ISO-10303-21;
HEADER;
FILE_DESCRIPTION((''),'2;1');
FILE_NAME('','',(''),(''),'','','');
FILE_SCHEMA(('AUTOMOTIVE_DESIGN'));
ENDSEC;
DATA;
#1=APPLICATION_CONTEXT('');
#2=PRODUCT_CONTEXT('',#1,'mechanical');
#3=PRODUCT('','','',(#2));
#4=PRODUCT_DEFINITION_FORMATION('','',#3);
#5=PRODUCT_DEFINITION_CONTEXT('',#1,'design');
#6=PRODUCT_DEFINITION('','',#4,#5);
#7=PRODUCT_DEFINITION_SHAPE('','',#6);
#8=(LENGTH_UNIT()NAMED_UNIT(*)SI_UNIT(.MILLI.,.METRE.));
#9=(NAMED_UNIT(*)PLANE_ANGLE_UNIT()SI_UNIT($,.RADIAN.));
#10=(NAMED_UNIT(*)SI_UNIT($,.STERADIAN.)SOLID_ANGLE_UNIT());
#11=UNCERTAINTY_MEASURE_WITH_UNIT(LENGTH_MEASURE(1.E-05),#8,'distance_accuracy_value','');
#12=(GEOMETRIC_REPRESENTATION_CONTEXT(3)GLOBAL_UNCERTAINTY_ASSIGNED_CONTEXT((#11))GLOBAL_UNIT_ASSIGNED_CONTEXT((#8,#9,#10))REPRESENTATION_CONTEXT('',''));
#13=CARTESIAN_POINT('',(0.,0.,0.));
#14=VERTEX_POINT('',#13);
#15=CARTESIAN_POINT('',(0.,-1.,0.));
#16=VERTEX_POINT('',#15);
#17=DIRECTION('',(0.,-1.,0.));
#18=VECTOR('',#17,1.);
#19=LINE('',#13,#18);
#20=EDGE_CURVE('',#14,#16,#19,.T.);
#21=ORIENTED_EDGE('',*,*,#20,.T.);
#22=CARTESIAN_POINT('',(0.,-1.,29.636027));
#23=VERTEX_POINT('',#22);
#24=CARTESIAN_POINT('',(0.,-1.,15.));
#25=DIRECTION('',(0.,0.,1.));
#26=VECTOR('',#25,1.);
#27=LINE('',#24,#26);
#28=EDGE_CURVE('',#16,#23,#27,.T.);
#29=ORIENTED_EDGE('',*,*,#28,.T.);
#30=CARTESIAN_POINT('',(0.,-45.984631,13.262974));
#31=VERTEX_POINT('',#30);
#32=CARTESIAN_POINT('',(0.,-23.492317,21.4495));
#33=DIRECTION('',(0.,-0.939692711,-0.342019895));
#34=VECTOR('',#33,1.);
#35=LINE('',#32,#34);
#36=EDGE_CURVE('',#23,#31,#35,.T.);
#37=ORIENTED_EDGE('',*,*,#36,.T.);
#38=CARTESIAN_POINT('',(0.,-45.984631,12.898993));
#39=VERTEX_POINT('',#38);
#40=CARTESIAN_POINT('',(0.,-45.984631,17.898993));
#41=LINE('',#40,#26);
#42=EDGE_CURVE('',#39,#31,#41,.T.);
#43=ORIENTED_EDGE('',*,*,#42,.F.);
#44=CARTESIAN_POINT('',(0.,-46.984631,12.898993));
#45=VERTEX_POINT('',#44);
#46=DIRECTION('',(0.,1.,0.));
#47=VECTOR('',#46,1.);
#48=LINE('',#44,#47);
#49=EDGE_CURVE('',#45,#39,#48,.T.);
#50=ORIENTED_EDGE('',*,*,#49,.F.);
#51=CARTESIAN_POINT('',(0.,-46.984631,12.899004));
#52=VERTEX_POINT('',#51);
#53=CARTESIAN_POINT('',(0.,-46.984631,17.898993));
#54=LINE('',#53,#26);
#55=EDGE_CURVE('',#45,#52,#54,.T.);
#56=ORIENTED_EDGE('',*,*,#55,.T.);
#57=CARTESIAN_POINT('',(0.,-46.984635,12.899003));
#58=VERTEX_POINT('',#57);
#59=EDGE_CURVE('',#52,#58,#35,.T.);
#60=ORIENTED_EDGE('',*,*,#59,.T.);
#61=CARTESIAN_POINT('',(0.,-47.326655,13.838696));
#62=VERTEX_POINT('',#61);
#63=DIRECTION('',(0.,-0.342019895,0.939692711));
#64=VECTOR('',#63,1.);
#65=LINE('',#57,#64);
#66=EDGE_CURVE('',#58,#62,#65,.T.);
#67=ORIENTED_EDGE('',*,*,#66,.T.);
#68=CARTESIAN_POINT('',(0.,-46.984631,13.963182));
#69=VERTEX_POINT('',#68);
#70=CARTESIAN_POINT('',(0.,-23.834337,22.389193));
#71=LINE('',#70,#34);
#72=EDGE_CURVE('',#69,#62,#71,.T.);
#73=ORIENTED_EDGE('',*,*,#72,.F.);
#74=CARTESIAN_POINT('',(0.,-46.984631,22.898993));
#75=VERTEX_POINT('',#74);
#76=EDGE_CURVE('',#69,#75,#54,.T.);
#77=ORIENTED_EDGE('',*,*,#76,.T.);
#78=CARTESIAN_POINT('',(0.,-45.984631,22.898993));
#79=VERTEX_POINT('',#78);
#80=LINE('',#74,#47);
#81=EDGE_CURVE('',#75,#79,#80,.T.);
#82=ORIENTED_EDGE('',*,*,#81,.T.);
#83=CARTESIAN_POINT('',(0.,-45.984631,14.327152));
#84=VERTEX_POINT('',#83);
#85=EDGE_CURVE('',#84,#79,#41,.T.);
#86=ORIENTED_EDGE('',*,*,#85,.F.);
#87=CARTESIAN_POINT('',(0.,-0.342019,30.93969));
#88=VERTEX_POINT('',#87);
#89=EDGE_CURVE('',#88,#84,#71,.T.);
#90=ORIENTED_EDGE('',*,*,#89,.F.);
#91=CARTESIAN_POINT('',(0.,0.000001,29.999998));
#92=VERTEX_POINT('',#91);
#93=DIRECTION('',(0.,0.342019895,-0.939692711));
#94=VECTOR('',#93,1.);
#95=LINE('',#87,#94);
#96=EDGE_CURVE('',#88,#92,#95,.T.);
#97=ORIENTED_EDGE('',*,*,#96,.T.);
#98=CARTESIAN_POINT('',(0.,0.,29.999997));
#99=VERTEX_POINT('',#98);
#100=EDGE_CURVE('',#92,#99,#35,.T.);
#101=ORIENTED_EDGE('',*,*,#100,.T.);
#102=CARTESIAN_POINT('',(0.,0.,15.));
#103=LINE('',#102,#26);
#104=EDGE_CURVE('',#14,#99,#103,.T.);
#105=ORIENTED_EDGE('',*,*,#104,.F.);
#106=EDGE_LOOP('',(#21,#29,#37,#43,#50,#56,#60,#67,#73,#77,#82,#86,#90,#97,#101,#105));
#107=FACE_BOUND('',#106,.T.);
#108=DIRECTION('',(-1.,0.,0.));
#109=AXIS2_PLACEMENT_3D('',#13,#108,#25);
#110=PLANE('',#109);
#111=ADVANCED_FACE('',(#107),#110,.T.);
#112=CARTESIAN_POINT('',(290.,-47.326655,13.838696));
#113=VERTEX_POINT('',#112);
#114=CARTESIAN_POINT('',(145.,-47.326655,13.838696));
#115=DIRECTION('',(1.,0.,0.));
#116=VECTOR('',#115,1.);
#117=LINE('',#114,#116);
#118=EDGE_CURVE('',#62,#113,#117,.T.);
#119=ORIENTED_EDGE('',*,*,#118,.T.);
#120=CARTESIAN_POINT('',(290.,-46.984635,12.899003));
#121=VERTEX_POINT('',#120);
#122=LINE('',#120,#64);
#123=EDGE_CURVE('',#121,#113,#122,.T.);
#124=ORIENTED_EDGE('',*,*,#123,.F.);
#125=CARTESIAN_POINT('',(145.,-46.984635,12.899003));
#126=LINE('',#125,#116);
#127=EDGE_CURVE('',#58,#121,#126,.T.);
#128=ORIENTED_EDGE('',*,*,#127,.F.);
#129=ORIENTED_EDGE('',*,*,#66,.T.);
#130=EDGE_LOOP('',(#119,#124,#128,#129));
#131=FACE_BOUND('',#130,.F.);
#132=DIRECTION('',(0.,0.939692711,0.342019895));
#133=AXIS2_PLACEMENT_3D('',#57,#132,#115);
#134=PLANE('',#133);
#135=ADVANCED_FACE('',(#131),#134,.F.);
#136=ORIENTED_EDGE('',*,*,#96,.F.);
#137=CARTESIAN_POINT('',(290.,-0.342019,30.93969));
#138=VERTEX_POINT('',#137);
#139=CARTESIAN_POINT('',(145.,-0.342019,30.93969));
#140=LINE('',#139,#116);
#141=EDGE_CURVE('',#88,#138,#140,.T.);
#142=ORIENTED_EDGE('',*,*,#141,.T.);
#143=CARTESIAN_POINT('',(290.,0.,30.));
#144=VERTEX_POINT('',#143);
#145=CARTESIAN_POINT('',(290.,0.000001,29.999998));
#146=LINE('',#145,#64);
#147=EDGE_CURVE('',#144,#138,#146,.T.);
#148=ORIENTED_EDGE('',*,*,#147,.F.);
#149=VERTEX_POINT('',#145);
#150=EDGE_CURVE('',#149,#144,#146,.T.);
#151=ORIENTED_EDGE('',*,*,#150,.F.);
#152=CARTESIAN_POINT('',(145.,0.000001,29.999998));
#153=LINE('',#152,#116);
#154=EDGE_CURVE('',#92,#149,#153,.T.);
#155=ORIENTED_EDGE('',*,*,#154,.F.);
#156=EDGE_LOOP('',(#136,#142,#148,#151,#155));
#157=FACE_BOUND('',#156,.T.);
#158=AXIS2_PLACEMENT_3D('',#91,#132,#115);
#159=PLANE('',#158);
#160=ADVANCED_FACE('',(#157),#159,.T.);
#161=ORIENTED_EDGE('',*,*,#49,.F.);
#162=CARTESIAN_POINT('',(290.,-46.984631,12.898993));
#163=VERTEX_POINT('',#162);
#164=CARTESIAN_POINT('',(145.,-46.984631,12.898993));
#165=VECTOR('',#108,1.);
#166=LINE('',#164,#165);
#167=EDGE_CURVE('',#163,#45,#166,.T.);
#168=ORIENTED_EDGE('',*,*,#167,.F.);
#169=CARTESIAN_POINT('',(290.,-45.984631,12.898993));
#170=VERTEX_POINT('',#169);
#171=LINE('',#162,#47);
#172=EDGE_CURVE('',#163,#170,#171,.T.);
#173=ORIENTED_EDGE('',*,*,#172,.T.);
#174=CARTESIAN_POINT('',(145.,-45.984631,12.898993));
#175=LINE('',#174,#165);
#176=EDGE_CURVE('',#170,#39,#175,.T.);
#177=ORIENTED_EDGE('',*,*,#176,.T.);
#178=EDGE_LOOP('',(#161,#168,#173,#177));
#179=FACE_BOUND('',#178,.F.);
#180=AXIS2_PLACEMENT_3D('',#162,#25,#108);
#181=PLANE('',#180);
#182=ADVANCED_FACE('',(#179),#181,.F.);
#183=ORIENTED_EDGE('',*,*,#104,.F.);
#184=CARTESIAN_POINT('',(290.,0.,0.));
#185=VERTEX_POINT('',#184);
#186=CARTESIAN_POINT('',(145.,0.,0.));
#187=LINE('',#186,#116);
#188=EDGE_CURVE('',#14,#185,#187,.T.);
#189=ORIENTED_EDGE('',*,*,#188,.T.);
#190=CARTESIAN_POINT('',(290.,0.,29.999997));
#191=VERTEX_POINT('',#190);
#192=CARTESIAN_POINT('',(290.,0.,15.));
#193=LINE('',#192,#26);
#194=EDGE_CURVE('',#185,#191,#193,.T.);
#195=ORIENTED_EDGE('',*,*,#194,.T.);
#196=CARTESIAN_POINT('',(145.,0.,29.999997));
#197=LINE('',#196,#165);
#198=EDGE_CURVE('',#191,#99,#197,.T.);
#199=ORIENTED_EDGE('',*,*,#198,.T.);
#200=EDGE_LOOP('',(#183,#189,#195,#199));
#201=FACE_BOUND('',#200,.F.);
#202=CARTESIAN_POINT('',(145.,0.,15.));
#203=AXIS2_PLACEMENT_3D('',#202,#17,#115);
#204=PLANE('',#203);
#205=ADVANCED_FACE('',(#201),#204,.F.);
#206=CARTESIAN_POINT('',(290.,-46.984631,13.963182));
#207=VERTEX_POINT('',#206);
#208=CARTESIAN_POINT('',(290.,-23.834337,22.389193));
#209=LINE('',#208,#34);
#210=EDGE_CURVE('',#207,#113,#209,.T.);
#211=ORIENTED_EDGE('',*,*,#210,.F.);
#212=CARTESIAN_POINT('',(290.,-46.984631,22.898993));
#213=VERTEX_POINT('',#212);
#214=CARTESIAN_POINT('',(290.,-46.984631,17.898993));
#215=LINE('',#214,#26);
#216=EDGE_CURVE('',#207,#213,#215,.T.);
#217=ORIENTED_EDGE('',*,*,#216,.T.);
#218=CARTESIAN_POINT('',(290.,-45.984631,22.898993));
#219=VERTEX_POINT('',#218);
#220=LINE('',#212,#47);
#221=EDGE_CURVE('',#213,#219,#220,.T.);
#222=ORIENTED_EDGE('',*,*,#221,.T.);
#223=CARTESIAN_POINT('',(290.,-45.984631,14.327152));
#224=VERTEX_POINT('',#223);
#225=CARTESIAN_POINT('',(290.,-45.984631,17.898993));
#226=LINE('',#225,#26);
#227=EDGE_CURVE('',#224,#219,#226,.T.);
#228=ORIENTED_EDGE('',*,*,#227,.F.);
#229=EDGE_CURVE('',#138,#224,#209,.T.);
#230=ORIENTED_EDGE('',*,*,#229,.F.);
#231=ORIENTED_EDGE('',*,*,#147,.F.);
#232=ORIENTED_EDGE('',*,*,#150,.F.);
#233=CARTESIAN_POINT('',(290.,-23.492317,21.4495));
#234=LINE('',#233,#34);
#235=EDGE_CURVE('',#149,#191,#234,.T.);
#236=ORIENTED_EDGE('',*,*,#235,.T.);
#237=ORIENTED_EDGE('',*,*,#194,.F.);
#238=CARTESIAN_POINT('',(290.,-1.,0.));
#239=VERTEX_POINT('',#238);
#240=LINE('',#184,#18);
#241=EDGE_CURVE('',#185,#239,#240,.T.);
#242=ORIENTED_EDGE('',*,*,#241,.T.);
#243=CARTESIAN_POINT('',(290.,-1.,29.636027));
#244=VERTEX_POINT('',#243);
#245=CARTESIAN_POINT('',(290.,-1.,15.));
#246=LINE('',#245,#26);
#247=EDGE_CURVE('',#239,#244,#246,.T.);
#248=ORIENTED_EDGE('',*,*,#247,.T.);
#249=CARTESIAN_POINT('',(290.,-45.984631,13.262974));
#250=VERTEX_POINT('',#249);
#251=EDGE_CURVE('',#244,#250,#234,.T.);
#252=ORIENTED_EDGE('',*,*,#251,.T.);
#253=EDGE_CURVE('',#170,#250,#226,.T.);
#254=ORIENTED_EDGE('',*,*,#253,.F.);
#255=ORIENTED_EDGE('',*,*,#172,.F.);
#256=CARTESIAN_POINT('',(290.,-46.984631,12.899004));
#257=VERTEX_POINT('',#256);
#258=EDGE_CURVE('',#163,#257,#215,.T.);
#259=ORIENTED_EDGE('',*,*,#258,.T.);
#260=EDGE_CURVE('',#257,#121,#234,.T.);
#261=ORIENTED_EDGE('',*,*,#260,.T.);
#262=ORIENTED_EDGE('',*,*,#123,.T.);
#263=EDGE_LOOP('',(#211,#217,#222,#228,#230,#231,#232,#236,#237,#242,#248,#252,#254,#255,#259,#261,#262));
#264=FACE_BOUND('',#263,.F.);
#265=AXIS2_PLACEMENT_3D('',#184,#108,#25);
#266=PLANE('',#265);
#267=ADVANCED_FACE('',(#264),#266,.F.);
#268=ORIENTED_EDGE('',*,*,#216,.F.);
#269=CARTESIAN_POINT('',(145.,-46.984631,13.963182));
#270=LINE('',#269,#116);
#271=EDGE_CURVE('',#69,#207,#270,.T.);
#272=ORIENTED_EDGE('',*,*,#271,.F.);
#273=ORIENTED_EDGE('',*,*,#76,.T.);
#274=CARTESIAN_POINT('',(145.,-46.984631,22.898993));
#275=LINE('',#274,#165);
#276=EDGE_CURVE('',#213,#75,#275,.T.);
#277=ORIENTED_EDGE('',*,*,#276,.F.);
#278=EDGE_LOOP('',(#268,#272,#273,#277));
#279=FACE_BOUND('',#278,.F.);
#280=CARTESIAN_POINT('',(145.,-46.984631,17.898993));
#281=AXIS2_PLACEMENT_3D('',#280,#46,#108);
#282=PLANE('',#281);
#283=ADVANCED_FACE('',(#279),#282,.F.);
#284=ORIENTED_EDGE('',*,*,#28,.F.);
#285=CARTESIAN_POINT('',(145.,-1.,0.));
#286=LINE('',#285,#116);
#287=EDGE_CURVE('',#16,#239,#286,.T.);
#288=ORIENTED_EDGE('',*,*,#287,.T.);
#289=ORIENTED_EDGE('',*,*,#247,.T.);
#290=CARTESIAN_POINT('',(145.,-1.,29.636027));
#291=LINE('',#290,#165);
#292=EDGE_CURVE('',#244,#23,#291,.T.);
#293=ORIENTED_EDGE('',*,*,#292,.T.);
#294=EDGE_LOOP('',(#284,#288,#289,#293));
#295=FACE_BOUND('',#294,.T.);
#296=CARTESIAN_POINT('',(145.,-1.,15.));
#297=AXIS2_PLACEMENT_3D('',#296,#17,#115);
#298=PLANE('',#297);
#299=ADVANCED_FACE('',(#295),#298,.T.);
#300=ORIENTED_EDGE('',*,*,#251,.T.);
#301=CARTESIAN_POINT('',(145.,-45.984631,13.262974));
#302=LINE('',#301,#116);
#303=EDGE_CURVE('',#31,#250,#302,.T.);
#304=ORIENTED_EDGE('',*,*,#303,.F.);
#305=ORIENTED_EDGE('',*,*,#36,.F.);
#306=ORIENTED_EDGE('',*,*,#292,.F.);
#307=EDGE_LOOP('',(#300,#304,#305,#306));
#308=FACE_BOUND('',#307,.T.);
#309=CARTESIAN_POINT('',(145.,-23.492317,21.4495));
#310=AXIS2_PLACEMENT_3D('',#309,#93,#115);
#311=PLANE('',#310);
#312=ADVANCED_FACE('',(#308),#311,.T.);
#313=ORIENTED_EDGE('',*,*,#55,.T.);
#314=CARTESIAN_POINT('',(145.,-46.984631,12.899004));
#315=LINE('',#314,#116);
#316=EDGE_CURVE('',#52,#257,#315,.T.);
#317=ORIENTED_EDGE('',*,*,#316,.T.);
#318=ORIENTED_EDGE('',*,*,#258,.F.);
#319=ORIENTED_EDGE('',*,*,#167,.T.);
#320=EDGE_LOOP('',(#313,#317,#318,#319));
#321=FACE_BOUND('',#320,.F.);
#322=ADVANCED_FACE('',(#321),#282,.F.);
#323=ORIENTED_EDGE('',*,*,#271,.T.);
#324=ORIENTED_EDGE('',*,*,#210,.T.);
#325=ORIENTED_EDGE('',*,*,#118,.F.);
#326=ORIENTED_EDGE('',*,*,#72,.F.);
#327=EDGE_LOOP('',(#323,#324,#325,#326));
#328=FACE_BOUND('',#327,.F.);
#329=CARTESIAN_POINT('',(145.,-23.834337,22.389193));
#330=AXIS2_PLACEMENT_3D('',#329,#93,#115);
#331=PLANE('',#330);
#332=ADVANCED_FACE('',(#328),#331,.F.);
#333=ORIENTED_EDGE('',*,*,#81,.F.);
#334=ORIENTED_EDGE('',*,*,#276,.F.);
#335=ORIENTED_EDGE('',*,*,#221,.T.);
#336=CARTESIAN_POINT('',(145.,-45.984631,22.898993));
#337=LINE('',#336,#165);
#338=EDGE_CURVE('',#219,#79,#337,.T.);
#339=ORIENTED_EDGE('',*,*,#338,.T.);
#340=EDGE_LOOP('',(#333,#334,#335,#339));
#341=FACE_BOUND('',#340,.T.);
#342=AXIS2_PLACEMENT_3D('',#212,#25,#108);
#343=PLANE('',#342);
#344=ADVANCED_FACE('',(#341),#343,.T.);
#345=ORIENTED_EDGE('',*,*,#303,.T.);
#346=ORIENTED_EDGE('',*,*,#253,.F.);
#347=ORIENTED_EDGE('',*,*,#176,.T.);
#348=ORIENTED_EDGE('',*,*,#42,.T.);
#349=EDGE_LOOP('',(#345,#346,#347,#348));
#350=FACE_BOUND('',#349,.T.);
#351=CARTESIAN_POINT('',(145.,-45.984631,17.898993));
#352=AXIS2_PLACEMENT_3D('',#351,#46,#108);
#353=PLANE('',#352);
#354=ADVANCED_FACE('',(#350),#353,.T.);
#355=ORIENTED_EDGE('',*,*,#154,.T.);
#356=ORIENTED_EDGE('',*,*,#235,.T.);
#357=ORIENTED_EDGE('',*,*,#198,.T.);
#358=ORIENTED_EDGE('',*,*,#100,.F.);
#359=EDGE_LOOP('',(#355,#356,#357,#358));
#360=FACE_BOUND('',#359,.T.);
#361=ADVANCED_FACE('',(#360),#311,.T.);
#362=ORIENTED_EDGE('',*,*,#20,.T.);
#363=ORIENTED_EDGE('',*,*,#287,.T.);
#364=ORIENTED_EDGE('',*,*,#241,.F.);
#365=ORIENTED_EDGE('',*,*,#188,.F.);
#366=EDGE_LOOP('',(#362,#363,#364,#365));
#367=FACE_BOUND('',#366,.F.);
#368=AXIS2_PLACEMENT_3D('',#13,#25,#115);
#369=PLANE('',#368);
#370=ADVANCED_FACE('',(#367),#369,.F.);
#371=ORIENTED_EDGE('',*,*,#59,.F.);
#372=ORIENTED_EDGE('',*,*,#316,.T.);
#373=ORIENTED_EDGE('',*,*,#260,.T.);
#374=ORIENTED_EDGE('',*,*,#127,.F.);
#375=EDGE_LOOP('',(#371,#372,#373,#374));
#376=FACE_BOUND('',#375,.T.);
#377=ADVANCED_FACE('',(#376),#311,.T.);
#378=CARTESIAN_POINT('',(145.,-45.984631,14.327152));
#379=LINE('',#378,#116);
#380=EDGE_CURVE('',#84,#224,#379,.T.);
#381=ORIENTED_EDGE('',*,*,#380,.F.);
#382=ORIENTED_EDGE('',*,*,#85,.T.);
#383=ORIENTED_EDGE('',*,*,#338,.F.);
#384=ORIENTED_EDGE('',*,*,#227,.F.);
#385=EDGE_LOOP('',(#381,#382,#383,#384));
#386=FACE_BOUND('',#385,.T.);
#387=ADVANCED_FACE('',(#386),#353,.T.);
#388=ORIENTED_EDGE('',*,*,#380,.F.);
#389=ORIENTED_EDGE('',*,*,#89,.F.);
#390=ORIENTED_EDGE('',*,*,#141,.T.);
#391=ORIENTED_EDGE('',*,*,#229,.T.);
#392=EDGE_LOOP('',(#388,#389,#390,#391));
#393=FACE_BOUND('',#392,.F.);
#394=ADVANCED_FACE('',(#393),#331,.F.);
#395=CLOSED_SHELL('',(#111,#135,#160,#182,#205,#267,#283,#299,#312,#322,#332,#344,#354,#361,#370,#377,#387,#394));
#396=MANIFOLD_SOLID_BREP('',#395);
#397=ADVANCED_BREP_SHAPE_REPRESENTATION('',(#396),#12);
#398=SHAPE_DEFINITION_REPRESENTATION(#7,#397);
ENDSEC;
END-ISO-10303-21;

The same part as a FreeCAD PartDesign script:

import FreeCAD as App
import Part
import Sketcher
from FreeCAD import Vector
Q = App.Units.Quantity


def add_polygon(sketch, points):
    """Adds a closed chain of lines whose ends are joined by coincident constraints."""
    first, n = sketch.GeometryCount, len(points)
    for a, b in zip(points, points[1:] + points[:1]):
        sketch.addGeometry(Part.LineSegment(App.Vector(*a, 0), App.Vector(*b, 0)), False)
    for i in range(n):
        sketch.addConstraint(Sketcher.Constraint("Coincident", first + i, 2, first + (i + 1) % n, 1))

doc = App.newDocument("Part")
params = doc.addObject("Spreadsheet::Sheet", "Params")
for row, (alias, value) in enumerate([
    ("sketch1_width", "290 mm"),
    ("sketch1_height", "50 mm"),
    ("pad1_length", "1 mm"),
    ("sketch2_width", "290 mm"),
    ("sketch2_height", "10 mm"),
    ("pad2_length", "1 mm"),
    ("sketch3_width", "290 mm"),
    ("sketch3_height", "30 mm"),
    ("pad3_length", "1 mm"),
], start=1):
    params.set(f"A{row}", alias)
    params.set(f"B{row}", "=" + value)
    params.setAlias(f"B{row}", alias)

body = doc.addObject("PartDesign::Body", "Body")

# Sketch on an angled plane
sketch1 = doc.addObject("Sketcher::SketchObject", "Sketch")
body.addObject(sketch1)
sketch1.Placement = App.Placement(Vector(0, -9.641814, 26.490667), App.Rotation(Vector(1, 0, 0), Vector(0, -0.939692711, -0.342019895), Vector(0, 0.342019895, -0.939692711), "ZXY"))
add_polygon(sketch1, [(0, 40), (0, -10), (290, -10), (290, 40)])  # lines 0-3
sketch1.addConstraint([
    Sketcher.Constraint("Vertical", 0),
    Sketcher.Constraint("Horizontal", 1),
    Sketcher.Constraint("Vertical", 2),
    Sketcher.Constraint("Horizontal", 3),
    Sketcher.Constraint("PointOnObject", 0, 2, -2),
    Sketcher.Constraint("DistanceX", 1, 1, 1, 2, Q("290 mm")),
    Sketcher.Constraint("DistanceY", 0, 2, 0, 1, Q("50 mm")),
    Sketcher.Constraint("DistanceY", 0, 2, -1, 1, Q("10.260604 mm")),
])
sketch1.setExpression("Constraints[9]", "Params.sketch1_width")
sketch1.setExpression("Constraints[10]", "Params.sketch1_height")
pad1 = doc.addObject("PartDesign::Pad", "Pad")
body.addObject(pad1)
pad1.Profile = sketch1
pad1.setExpression("Length", "Params.pad1_length")
pad1.Reversed = True

# Sketch on XZ plane
sketch2 = doc.addObject("Sketcher::SketchObject", "Sketch001")
body.addObject(sketch2)
sketch2.AttachmentSupport = (doc.XZ_Plane, [""])
sketch2.MapMode = "FlatFace"
sketch2.AttachmentOffset = App.Placement(Vector(0, 0, 46.984631), App.Rotation())
add_polygon(sketch2, [(290, 23), (290, 13), (0, 13), (0, 23)])  # lines 0-3
sketch2.addConstraint([
    Sketcher.Constraint("Vertical", 0),
    Sketcher.Constraint("Horizontal", 1),
    Sketcher.Constraint("Vertical", 2),
    Sketcher.Constraint("Horizontal", 3),
    Sketcher.Constraint("PointOnObject", 1, 2, -2),
    Sketcher.Constraint("DistanceX", 1, 2, 1, 1, Q("290 mm")),
    Sketcher.Constraint("DistanceY", 0, 2, 0, 1, Q("10 mm")),
    Sketcher.Constraint("DistanceY", -1, 1, 0, 2, Q("12.898993 mm")),
])
sketch2.setExpression("Constraints[9]", "Params.sketch2_width")
sketch2.setExpression("Constraints[10]", "Params.sketch2_height")
pad2 = doc.addObject("PartDesign::Pad", "Pad001")
body.addObject(pad2)
pad2.Profile = sketch2
pad2.setExpression("Length", "Params.pad2_length")
pad2.Reversed = True

# Sketch on XZ plane
sketch3 = doc.addObject("Sketcher::SketchObject", "Sketch002")
body.addObject(sketch3)
sketch3.AttachmentSupport = (doc.XZ_Plane, [""])
sketch3.MapMode = "FlatFace"
add_polygon(sketch3, [(0, 30), (0, 0), (290, 0), (290, 30)])  # lines 0-3
sketch3.addConstraint([
    Sketcher.Constraint("Vertical", 0),
    Sketcher.Constraint("Horizontal", 1),
    Sketcher.Constraint("Vertical", 2),
    Sketcher.Constraint("Horizontal", 3),
    Sketcher.Constraint("Coincident", 0, 2, -1, 1),
    Sketcher.Constraint("DistanceX", 1, 1, 1, 2, Q("290 mm")),
    Sketcher.Constraint("DistanceY", 0, 2, 0, 1, Q("30 mm")),
])
sketch3.setExpression("Constraints[9]", "Params.sketch3_width")
sketch3.setExpression("Constraints[10]", "Params.sketch3_height")
pad3 = doc.addObject("PartDesign::Pad", "Pad002")
body.addObject(pad3)
pad3.Profile = sketch3
pad3.setExpression("Length", "Params.pad3_length")

doc.recompute()
